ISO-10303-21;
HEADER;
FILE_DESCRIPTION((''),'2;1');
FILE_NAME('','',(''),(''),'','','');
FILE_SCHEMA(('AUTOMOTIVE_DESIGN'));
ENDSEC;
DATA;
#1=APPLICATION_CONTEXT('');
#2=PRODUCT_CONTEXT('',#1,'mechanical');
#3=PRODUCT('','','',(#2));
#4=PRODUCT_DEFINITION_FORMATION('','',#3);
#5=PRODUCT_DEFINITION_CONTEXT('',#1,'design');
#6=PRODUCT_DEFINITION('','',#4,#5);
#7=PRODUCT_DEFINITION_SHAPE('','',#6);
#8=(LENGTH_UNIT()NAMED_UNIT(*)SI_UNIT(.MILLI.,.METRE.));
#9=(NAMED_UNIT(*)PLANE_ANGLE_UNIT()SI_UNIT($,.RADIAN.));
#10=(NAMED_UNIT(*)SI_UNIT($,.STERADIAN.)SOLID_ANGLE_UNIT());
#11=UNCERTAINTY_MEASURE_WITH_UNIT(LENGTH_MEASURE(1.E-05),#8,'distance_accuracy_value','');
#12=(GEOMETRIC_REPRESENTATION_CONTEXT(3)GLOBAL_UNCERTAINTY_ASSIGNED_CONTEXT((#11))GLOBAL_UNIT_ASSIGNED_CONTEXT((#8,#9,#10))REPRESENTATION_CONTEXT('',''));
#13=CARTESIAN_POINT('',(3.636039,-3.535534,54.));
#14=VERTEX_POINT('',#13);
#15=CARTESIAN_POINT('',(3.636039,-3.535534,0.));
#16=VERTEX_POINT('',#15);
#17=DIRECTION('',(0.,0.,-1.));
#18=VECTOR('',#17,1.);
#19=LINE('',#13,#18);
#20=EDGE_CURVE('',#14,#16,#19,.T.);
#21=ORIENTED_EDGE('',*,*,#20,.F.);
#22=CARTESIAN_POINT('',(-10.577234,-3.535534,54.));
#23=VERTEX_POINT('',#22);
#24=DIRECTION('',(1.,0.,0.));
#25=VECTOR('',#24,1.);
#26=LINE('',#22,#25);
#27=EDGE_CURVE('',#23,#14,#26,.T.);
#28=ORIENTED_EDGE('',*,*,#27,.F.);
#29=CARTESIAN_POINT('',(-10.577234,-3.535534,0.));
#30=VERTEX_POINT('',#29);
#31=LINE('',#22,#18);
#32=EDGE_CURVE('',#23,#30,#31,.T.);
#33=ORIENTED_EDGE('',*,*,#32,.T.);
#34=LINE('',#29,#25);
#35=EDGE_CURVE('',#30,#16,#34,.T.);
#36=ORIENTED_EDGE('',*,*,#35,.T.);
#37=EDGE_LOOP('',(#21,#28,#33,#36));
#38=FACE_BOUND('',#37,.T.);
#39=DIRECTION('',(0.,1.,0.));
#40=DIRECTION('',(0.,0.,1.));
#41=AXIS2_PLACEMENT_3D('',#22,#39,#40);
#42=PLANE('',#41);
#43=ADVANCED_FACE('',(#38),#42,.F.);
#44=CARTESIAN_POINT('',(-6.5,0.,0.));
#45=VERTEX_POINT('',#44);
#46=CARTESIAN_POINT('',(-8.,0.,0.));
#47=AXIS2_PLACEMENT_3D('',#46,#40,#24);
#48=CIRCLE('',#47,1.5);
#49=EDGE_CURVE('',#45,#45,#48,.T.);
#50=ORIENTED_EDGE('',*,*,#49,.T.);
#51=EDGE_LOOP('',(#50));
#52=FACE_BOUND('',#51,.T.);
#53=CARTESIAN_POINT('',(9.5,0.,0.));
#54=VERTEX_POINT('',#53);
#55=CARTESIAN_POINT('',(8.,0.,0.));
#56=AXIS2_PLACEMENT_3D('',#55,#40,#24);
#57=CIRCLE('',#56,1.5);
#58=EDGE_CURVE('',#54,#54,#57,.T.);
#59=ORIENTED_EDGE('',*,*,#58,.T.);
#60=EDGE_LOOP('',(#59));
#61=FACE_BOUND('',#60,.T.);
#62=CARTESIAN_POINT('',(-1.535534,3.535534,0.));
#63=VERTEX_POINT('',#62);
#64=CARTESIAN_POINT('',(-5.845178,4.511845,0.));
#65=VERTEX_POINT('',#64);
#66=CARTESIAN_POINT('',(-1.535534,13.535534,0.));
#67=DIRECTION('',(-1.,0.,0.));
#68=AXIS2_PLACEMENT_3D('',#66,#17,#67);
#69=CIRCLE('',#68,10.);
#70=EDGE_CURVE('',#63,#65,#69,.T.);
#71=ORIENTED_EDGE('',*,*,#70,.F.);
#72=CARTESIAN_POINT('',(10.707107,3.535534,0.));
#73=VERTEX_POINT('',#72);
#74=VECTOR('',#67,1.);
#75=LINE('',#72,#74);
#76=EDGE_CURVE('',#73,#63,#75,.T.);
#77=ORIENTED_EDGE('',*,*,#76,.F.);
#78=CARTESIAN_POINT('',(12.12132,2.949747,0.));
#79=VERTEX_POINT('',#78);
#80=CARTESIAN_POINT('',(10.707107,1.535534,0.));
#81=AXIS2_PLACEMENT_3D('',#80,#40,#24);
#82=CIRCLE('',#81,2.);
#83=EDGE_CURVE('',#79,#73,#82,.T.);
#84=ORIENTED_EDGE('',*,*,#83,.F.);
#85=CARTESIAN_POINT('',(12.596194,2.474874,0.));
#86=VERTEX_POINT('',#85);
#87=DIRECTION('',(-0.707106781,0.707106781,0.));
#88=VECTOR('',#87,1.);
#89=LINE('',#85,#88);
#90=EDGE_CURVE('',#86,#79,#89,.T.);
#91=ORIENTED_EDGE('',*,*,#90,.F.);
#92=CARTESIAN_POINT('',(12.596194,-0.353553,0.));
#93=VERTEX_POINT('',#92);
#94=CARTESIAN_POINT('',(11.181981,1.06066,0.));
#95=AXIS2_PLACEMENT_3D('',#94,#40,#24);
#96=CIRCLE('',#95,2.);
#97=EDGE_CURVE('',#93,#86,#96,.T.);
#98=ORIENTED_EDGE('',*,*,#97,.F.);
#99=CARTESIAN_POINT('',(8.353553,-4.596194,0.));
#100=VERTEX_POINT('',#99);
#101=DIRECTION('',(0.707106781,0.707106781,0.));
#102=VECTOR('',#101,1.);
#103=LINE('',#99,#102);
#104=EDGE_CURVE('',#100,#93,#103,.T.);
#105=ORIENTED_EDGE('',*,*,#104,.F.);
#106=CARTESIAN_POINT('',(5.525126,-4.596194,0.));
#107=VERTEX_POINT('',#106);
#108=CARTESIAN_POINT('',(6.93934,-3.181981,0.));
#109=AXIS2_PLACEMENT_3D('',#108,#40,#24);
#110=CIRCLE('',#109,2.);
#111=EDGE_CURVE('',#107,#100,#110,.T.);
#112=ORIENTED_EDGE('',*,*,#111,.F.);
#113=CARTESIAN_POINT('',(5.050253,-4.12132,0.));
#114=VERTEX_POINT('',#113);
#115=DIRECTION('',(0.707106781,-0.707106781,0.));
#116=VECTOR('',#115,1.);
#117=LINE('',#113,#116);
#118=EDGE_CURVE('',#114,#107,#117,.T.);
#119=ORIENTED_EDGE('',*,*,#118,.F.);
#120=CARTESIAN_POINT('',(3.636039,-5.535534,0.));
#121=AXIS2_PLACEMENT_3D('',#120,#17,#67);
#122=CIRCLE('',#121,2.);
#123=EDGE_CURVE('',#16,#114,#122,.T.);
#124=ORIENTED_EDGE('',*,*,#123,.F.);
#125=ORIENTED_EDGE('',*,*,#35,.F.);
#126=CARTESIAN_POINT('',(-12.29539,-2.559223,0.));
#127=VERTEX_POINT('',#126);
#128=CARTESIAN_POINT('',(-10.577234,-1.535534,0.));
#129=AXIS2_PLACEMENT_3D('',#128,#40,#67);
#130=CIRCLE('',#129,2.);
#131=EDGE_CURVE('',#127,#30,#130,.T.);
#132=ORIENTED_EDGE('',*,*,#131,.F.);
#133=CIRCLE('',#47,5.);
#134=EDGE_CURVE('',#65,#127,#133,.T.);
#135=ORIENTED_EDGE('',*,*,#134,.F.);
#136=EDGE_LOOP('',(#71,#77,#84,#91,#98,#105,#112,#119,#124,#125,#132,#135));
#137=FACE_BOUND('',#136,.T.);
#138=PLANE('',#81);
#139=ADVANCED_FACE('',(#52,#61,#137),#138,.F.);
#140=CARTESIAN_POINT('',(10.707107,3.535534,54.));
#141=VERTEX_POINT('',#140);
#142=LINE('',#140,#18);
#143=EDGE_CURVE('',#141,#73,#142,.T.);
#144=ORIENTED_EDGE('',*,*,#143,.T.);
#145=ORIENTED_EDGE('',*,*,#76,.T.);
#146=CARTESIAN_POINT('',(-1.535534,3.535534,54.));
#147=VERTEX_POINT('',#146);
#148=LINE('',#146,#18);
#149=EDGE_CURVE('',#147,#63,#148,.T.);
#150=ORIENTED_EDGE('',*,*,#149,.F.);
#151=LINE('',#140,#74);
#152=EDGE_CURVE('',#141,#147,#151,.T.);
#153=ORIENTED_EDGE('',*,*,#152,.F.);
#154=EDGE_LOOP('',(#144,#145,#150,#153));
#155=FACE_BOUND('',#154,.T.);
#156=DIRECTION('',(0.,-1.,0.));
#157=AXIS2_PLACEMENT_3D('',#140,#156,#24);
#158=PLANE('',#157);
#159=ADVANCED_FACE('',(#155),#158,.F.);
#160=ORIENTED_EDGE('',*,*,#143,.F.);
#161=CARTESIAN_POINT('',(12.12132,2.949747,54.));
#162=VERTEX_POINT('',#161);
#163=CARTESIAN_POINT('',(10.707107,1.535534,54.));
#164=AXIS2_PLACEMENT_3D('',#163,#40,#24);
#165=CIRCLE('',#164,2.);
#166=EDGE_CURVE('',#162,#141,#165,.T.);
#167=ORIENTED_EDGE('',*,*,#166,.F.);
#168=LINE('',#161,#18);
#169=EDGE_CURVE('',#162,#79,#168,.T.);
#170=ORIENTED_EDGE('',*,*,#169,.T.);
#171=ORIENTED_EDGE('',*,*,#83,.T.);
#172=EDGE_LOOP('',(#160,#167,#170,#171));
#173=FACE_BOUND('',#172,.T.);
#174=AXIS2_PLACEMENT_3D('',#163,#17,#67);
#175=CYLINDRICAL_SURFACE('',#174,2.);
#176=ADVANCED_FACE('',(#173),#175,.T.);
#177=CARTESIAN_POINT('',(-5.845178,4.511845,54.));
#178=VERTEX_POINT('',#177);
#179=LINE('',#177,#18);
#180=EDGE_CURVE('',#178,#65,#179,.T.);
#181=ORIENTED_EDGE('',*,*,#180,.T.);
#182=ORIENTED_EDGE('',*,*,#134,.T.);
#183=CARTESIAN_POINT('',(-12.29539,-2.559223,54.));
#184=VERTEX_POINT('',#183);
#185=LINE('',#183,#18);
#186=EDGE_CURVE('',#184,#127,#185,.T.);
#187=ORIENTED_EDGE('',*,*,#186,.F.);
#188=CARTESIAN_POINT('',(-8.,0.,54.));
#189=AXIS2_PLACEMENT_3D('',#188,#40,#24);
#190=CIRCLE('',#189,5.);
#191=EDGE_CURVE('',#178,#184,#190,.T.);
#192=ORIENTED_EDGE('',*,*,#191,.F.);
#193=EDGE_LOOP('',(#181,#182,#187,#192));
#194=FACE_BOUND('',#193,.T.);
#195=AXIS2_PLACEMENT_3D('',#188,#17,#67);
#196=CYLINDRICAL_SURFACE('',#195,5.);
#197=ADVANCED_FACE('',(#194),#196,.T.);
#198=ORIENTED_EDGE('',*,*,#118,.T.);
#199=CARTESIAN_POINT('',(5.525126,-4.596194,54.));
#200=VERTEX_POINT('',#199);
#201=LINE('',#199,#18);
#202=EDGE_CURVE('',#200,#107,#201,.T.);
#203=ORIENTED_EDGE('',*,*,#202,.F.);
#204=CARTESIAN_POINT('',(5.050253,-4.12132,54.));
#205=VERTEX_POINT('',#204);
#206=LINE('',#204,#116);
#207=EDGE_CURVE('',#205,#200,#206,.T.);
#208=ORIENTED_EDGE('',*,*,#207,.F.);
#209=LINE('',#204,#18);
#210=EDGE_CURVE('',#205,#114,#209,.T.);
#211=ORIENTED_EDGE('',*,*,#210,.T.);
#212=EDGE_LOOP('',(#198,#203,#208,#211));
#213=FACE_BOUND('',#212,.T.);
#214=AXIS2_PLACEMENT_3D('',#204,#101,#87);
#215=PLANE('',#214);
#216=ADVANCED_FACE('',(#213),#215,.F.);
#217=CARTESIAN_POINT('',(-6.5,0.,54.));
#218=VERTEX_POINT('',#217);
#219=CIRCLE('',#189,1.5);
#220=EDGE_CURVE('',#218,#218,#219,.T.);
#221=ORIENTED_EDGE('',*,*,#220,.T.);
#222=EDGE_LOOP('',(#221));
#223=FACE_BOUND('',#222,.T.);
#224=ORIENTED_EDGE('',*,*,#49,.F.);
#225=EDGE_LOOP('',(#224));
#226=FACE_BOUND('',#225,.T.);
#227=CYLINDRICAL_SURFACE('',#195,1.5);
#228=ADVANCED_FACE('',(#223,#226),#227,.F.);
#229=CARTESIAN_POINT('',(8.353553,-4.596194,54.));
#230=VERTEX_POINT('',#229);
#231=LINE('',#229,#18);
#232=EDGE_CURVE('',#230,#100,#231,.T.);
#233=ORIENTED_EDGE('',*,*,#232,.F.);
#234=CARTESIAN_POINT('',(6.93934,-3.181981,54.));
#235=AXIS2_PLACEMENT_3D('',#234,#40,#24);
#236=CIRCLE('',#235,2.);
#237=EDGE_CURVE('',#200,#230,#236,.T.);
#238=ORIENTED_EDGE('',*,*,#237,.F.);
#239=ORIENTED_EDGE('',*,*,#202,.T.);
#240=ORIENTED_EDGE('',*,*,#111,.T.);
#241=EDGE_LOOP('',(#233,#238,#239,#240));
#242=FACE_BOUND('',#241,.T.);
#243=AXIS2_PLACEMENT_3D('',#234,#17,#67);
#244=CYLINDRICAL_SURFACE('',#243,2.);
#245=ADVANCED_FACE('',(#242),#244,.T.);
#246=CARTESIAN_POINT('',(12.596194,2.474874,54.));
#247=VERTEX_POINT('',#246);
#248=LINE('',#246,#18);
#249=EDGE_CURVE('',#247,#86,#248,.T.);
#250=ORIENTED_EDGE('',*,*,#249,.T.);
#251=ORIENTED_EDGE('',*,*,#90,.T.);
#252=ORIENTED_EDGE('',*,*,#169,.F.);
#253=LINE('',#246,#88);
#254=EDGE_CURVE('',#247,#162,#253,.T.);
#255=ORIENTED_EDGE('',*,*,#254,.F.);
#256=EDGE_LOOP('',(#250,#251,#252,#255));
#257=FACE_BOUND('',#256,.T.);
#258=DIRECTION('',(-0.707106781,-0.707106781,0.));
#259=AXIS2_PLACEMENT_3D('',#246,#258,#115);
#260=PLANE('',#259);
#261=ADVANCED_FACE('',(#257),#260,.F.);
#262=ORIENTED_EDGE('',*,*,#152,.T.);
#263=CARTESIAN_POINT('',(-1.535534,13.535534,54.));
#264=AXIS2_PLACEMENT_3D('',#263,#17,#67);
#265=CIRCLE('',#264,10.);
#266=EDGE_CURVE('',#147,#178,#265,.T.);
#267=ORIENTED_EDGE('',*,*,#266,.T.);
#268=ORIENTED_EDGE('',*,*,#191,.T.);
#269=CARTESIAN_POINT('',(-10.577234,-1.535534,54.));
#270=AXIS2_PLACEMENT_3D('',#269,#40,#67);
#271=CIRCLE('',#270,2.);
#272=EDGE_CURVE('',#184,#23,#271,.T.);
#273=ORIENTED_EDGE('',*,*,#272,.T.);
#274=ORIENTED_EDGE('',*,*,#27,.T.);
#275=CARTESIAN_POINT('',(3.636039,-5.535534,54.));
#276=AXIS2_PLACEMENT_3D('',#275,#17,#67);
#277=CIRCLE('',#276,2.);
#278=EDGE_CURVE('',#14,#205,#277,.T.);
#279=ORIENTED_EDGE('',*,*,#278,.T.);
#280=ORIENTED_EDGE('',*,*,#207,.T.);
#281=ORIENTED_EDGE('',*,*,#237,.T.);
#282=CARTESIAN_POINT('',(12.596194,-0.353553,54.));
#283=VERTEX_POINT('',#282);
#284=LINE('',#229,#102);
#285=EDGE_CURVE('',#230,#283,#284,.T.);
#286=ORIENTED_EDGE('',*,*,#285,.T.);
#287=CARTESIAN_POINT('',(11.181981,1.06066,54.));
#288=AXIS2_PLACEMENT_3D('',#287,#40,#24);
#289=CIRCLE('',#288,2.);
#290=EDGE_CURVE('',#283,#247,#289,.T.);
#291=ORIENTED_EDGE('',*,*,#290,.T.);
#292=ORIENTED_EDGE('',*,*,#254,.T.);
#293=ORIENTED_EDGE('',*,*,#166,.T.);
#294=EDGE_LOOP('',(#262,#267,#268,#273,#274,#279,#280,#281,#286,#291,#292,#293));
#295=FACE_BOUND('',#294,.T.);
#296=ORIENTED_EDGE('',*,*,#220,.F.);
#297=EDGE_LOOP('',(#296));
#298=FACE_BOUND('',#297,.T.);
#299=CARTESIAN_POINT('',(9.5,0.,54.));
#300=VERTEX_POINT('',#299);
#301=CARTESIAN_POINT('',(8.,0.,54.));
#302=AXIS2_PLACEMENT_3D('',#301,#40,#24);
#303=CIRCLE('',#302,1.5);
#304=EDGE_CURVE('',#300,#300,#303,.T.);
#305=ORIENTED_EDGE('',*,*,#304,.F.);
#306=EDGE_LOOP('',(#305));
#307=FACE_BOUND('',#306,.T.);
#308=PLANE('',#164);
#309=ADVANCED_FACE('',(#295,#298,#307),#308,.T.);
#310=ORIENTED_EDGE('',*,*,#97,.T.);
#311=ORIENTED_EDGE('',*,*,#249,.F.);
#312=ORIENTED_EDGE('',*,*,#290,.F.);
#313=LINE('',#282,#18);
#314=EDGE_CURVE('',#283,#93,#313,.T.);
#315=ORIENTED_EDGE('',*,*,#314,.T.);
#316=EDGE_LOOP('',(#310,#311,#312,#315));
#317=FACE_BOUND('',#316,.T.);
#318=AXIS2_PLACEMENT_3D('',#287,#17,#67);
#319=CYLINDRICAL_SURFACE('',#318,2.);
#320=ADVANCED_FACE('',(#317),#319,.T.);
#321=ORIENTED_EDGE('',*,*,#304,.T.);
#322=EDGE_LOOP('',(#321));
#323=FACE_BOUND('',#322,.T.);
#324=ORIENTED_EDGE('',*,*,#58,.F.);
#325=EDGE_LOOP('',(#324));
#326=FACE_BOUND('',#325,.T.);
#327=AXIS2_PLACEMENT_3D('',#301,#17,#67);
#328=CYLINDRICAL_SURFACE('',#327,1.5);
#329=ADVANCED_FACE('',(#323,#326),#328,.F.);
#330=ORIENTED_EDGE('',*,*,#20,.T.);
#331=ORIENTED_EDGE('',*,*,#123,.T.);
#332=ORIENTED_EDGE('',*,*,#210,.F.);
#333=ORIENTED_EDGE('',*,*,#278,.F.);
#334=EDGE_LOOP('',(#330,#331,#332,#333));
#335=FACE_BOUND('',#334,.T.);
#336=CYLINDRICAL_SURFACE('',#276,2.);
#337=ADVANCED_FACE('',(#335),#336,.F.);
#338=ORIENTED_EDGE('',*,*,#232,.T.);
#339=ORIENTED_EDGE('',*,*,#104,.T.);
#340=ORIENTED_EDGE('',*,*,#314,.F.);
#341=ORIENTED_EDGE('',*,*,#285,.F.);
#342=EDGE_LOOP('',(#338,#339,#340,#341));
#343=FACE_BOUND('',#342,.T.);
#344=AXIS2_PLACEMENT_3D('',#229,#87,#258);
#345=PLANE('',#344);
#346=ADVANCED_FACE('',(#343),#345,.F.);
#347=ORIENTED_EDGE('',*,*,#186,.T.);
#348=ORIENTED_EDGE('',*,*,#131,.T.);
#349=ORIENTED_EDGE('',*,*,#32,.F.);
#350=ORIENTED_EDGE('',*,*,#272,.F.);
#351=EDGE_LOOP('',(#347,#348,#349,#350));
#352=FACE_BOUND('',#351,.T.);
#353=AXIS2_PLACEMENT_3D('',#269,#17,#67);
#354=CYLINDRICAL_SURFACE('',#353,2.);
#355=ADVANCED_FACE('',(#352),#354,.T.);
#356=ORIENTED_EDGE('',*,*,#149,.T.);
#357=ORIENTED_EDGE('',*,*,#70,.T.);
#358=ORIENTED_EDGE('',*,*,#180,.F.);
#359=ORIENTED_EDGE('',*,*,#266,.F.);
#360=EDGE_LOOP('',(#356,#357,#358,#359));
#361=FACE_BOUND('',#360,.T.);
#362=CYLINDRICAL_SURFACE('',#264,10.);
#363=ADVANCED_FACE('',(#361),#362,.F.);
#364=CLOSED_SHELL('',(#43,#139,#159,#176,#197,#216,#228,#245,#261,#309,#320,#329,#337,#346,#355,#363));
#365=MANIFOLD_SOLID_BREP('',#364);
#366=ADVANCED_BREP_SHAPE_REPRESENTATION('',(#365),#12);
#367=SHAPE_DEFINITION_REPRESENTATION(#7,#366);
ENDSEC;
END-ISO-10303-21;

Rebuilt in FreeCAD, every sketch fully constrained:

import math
import FreeCAD as App
import Part
import Sketcher

V = App.Vector

doc = App.newDocument("Part")
body = doc.addObject("PartDesign::Body", "Body")

# Sketch on XY plane
sketch1 = body.newObject("Sketcher::SketchObject", "Sketch")
sketch1.AttachmentSupport = (doc.getObject("XY_Plane"), [""])
sketch1.MapMode = "FlatFace"
sketch1.addGeometry([
    Part.LineSegment(V(-10.6, -3.5, 0), V(3.6, -3.5, 0)),  # 0
    Part.ArcOfCircle(Part.Circle(V(3.6, -5.5, 0), V(0, 0, 1), 2), math.radians(45), math.radians(90)),  # 1
    Part.LineSegment(V(5.1, -4.1, 0), V(5.5, -4.6, 0)),  # 2
    Part.ArcOfCircle(Part.Circle(V(6.9, -3.2, 0), V(0, 0, 1), 2), math.radians(-135), math.radians(-45)),  # 3
    Part.LineSegment(V(8.4, -4.6, 0), V(12.6, -0.4, 0)),  # 4
    Part.ArcOfCircle(Part.Circle(V(11.2, 1.1, 0), V(0, 0, 1), 2), math.radians(-45), math.radians(45)),  # 5
    Part.LineSegment(V(12.6, 2.5, 0), V(12.1, 2.9, 0)),  # 6
    Part.ArcOfCircle(Part.Circle(V(10.7, 1.5, 0), V(0, 0, 1), 2), math.radians(45), math.radians(90)),  # 7
    Part.LineSegment(V(10.7, 3.5, 0), V(-1.5, 3.5, 0)),  # 8
    Part.ArcOfCircle(Part.Circle(V(-1.5, 13.5, 0), V(0, 0, 1), 10), math.radians(-116), math.radians(-90)),  # 9
    Part.ArcOfCircle(Part.Circle(V(-8, 0, 0), V(0, 0, 1), 5), math.radians(64), math.radians(211)),  # 10
    Part.ArcOfCircle(Part.Circle(V(-10.6, -1.5, 0), V(0, 0, 1), 2), math.radians(-149), math.radians(-90)),  # 11
    Part.Circle(V(-8, 0, 0), V(0, 0, 1), 1.5),  # 12
    Part.Circle(V(8, 0, 0), V(0, 0, 1), 1.5),  # 13
], False)
sketch1.addConstraint([
    Sketcher.Constraint("Tangent", 0, 2, 1, 2),
    Sketcher.Constraint("Tangent", 1, 1, 2, 1),
    Sketcher.Constraint("Tangent", 2, 2, 3, 1),
    Sketcher.Constraint("Tangent", 3, 2, 4, 1),
    Sketcher.Constraint("Tangent", 4, 2, 5, 1),
    Sketcher.Constraint("Tangent", 5, 2, 6, 1),
    Sketcher.Constraint("Tangent", 6, 2, 7, 1),
    Sketcher.Constraint("Tangent", 7, 2, 8, 1),
    Sketcher.Constraint("Tangent", 8, 2, 9, 2),
    Sketcher.Constraint("Tangent", 9, 1, 10, 1),
    Sketcher.Constraint("Tangent", 10, 2, 11, 1),
    Sketcher.Constraint("Tangent", 11, 2, 0, 1),
    Sketcher.Constraint("Horizontal", 0),
    Sketcher.Constraint("Horizontal", 8),
    Sketcher.Constraint("Coincident", 12, 3, 10, 3),
    Sketcher.Constraint("Equal", 1, 3),
    Sketcher.Constraint("Equal", 3, 5),
    Sketcher.Constraint("Equal", 5, 7),
    Sketcher.Constraint("Equal", 7, 11),
    Sketcher.Constraint("Equal", 12, 13),
    Sketcher.Constraint("Symmetric", 10, 3, 13, 3, -1, 1),
    Sketcher.Constraint("PointOnObject", 10, 3, -1),
    Sketcher.Constraint("Perpendicular", 2, 4),
    Sketcher.Constraint("Perpendicular", 4, 6),
    Sketcher.Constraint("Horizontal", 2, 2, 3, 2),
    Sketcher.Constraint("Equal", 2, 6),
    Sketcher.Constraint("Diameter", 12, 3.0),
    Sketcher.Constraint("Radius", 1, 2.0),
    Sketcher.Constraint("Radius", 9, 10.0),
    Sketcher.Constraint("Radius", 10, 5.0),
    Sketcher.Constraint("Distance", 4, 6.0),
    Sketcher.Constraint("DistanceX", 10, 3, -1, 1, 8.0),
    Sketcher.Constraint("DistanceX", 8, 2, 8, 1, 12.242641),
    Sketcher.Constraint("DistanceX", 1, 3, 3, 3, 3.303301),
    Sketcher.Constraint("DistanceX", 11, 3, 9, 3, 9.0417),
])
pad1 = body.newObject("PartDesign::Pad", "Pad")
pad1.Profile = sketch1
pad1.Length = 54

doc.recompute()
